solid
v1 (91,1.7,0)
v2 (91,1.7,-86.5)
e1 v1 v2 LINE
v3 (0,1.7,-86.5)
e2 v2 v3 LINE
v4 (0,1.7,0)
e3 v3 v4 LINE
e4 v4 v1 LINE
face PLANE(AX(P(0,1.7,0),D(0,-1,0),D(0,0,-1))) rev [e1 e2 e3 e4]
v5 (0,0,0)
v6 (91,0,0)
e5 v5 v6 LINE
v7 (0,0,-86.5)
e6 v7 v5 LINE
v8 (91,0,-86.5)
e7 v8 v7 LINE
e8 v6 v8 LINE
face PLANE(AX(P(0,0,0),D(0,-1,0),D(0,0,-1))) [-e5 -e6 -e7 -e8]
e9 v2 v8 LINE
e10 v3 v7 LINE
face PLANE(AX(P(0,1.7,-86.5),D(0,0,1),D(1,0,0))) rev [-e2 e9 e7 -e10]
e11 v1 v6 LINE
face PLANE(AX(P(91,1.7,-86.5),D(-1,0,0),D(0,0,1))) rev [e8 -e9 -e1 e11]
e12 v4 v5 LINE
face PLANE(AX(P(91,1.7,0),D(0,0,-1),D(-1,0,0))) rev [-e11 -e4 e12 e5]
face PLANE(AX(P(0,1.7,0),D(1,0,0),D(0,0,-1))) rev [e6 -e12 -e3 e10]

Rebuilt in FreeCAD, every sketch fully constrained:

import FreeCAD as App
import Part
import Sketcher
from FreeCAD import Vector
Q = App.Units.Quantity

doc = App.newDocument("Part")
body = doc.addObject("PartDesign::Body", "Body")

# Sketch on XZ plane
sketch1 = body.newObject("Sketcher::SketchObject", "Sketch")
sketch1.AttachmentSupport = (doc.getObject("XZ_Plane"), [""])
sketch1.MapMode = "FlatFace"
sketch1.addGeometry([
    Part.LineSegment(Vector(0, -86, 0), Vector(0, 0, 0)),
    Part.LineSegment(Vector(0, 0, 0), Vector(91, 0, 0)),
    Part.LineSegment(Vector(91, 0, 0), Vector(91, -86, 0)),
    Part.LineSegment(Vector(91, -86, 0), Vector(0, -86, 0)),
], False)
sketch1.addConstraint([
    Sketcher.Constraint("Coincident", 0, 2, 1, 1),
    Sketcher.Constraint("Coincident", 1, 2, 2, 1),
    Sketcher.Constraint("Coincident", 2, 2, 3, 1),
    Sketcher.Constraint("Coincident", 3, 2, 0, 1),
    Sketcher.Constraint("Vertical", 0),
    Sketcher.Constraint("Horizontal", 1),
    Sketcher.Constraint("Vertical", 2),
    Sketcher.Constraint("Horizontal", 3),
    Sketcher.Constraint("Coincident", 0, 2, -1, 1),
    Sketcher.Constraint("DistanceX", 1, 1, 1, 2, Q("91 mm")),
    Sketcher.Constraint("DistanceY", 0, 1, 0, 2, Q("86.5 mm")),
])
pad1 = body.newObject("PartDesign::Pad", "Pad")
pad1.Profile = sketch1
pad1.Length = 1.7
pad1.Reversed = True

doc.recompute()
